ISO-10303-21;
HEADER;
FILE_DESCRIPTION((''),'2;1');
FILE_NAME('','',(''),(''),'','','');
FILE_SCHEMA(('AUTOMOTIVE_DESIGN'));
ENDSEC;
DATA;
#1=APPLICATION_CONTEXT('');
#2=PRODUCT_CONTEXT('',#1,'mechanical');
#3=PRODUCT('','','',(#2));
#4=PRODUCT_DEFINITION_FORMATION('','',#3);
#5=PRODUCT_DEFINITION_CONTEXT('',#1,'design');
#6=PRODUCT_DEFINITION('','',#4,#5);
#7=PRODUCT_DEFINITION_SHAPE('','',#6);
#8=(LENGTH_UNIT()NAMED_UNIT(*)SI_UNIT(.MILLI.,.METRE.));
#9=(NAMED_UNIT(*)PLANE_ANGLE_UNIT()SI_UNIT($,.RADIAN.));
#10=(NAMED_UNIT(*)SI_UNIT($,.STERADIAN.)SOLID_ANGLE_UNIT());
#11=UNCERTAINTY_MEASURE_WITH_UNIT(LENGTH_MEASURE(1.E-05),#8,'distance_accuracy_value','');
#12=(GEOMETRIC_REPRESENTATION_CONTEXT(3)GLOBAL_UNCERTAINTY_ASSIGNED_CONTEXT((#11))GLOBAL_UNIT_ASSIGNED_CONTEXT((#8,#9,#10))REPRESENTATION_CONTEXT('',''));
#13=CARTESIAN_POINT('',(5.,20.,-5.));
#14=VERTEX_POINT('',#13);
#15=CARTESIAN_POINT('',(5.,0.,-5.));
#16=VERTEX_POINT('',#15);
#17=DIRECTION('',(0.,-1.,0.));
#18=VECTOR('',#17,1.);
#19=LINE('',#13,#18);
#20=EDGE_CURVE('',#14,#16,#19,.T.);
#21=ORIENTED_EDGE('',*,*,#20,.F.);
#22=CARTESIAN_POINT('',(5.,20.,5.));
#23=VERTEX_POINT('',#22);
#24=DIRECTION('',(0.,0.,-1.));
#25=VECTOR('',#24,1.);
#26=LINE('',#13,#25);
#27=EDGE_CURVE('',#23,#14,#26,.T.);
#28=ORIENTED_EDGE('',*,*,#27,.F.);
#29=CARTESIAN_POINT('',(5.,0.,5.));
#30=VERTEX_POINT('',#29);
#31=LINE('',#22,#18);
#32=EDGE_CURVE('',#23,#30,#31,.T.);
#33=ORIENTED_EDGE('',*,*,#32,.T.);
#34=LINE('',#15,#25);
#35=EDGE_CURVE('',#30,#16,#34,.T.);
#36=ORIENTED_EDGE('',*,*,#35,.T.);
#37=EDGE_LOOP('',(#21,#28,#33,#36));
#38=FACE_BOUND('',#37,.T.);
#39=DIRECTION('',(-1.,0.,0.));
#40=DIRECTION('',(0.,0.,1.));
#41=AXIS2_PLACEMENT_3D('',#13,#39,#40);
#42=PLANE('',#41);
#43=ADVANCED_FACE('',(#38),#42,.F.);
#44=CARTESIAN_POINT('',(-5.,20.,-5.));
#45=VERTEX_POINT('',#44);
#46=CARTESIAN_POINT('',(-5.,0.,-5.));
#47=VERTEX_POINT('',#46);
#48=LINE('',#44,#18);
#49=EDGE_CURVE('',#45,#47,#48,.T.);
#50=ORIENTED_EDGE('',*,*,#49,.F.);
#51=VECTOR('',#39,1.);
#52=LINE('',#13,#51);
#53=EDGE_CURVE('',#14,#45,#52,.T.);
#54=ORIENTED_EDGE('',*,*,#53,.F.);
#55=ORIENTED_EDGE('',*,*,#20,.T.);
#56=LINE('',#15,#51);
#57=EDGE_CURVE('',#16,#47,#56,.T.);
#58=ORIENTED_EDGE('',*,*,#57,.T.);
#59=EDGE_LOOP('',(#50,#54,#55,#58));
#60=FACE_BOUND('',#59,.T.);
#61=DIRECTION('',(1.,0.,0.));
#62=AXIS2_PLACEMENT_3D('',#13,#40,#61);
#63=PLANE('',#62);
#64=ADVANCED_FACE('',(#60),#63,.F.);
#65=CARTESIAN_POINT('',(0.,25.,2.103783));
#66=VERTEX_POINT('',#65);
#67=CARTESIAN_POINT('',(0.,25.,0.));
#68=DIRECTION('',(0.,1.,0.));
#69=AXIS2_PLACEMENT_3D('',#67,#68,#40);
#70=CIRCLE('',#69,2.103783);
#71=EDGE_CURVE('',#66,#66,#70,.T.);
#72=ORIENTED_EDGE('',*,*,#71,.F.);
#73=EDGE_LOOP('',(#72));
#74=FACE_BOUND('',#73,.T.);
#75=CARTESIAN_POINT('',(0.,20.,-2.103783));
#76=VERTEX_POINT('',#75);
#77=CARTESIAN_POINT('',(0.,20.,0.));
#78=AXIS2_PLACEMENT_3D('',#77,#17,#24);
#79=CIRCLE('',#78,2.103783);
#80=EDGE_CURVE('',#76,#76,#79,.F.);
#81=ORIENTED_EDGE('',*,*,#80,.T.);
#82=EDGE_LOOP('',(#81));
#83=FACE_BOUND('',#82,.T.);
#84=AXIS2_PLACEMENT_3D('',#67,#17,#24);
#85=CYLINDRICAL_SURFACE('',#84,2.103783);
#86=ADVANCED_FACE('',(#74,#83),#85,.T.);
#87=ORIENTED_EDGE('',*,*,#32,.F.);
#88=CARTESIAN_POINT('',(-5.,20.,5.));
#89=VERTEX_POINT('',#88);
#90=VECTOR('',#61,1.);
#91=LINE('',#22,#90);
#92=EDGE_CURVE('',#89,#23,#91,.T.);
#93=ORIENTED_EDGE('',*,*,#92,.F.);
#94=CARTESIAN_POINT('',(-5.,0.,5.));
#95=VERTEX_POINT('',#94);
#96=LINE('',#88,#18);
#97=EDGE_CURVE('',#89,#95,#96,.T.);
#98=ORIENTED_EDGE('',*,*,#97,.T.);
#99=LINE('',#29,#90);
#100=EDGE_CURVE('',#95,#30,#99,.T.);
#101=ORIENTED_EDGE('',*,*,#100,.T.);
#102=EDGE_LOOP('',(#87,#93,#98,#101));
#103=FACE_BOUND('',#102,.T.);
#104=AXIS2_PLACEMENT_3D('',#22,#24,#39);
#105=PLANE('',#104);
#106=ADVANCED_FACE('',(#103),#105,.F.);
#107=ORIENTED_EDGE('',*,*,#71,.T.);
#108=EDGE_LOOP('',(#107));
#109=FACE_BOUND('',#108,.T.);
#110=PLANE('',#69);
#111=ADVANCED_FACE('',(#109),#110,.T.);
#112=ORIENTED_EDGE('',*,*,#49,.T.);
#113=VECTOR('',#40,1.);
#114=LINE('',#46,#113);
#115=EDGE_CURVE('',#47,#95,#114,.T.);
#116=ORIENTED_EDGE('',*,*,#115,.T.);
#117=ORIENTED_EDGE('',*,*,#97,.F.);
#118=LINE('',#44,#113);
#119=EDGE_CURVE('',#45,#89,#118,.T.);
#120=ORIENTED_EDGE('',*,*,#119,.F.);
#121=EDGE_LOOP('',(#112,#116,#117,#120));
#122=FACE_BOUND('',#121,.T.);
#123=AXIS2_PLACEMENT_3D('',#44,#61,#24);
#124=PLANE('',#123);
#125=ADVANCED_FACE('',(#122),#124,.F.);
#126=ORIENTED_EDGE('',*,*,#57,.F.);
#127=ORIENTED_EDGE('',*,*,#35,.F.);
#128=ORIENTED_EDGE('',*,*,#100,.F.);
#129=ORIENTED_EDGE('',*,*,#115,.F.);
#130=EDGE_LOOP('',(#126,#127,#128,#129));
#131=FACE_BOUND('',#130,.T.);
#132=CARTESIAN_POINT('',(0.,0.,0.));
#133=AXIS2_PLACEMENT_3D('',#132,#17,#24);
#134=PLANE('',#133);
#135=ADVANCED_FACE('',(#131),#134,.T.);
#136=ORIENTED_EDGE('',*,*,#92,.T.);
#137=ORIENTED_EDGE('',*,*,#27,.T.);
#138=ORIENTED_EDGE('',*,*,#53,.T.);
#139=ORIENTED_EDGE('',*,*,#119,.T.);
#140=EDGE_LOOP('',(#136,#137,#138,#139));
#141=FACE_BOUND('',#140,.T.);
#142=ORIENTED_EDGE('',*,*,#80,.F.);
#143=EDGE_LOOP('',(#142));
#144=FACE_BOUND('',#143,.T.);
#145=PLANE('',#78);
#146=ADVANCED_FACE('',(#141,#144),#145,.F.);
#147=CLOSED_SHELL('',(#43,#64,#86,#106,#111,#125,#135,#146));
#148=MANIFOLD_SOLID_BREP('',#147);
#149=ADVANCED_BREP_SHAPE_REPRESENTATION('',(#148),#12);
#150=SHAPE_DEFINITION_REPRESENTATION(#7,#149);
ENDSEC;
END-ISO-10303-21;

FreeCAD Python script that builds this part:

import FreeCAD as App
import Part
import Sketcher


def add_polygon(sketch, points):
    """Adds a closed chain of lines whose ends are joined by coincident constraints."""
    first, n = sketch.GeometryCount, len(points)
    for a, b in zip(points, points[1:] + points[:1]):
        sketch.addGeometry(Part.LineSegment(App.Vector(*a, 0), App.Vector(*b, 0)), False)
    for i in range(n):
        sketch.addConstraint(Sketcher.Constraint("Coincident", first + i, 2, first + (i + 1) % n, 1))

doc = App.newDocument("Part")
body = doc.addObject("PartDesign::Body", "Body")

sketch1 = doc.addObject("Sketcher::SketchObject", "Sketch")
body.addObject(sketch1)
sketch1.AttachmentSupport = (doc.XZ_Plane, [""])
sketch1.MapMode = "FlatFace"
add_polygon(sketch1, [(-5, -5), (-5, 5), (5, 5), (5, -5)])
sketch1.addConstraint(Sketcher.Constraint("Vertical", 0))
sketch1.addConstraint(Sketcher.Constraint("Horizontal", 1))
sketch1.addConstraint(Sketcher.Constraint("Vertical", 2))
sketch1.addConstraint(Sketcher.Constraint("Horizontal", 3))
sketch1.addConstraint(Sketcher.Constraint("Symmetric", 0, 2, 2, 2, -1, 1))
sketch1.addConstraint(Sketcher.Constraint("Equal", 3, 0))
sketch1.addConstraint(Sketcher.Constraint("DistanceX", 1, 1, 1, 2, 10.0))
pad1 = doc.addObject("PartDesign::Pad", "Pad")
body.addObject(pad1)
pad1.Profile = sketch1
pad1.Length = 20
pad1.Reversed = True

sketch2 = doc.addObject("Sketcher::SketchObject", "Sketch001")
body.addObject(sketch2)
sketch2.AttachmentSupport = (doc.XZ_Plane, [""])
sketch2.MapMode = "FlatFace"
sketch2.AttachmentOffset = App.Placement(App.Vector(0, 0, -20), App.Rotation())
sketch2.addGeometry(Part.Circle(App.Vector(0, 0, 0), App.Vector(0, 0, 1), 2.1), False)
sketch2.addConstraint(Sketcher.Constraint("Coincident", 0, 3, -1, 1))
sketch2.addConstraint(Sketcher.Constraint("Diameter", 0, 4.207567))
pad2 = doc.addObject("PartDesign::Pad", "Pad001")
body.addObject(pad2)
pad2.Profile = sketch2
pad2.Length = 5
pad2.Reversed = True

doc.recompute()
